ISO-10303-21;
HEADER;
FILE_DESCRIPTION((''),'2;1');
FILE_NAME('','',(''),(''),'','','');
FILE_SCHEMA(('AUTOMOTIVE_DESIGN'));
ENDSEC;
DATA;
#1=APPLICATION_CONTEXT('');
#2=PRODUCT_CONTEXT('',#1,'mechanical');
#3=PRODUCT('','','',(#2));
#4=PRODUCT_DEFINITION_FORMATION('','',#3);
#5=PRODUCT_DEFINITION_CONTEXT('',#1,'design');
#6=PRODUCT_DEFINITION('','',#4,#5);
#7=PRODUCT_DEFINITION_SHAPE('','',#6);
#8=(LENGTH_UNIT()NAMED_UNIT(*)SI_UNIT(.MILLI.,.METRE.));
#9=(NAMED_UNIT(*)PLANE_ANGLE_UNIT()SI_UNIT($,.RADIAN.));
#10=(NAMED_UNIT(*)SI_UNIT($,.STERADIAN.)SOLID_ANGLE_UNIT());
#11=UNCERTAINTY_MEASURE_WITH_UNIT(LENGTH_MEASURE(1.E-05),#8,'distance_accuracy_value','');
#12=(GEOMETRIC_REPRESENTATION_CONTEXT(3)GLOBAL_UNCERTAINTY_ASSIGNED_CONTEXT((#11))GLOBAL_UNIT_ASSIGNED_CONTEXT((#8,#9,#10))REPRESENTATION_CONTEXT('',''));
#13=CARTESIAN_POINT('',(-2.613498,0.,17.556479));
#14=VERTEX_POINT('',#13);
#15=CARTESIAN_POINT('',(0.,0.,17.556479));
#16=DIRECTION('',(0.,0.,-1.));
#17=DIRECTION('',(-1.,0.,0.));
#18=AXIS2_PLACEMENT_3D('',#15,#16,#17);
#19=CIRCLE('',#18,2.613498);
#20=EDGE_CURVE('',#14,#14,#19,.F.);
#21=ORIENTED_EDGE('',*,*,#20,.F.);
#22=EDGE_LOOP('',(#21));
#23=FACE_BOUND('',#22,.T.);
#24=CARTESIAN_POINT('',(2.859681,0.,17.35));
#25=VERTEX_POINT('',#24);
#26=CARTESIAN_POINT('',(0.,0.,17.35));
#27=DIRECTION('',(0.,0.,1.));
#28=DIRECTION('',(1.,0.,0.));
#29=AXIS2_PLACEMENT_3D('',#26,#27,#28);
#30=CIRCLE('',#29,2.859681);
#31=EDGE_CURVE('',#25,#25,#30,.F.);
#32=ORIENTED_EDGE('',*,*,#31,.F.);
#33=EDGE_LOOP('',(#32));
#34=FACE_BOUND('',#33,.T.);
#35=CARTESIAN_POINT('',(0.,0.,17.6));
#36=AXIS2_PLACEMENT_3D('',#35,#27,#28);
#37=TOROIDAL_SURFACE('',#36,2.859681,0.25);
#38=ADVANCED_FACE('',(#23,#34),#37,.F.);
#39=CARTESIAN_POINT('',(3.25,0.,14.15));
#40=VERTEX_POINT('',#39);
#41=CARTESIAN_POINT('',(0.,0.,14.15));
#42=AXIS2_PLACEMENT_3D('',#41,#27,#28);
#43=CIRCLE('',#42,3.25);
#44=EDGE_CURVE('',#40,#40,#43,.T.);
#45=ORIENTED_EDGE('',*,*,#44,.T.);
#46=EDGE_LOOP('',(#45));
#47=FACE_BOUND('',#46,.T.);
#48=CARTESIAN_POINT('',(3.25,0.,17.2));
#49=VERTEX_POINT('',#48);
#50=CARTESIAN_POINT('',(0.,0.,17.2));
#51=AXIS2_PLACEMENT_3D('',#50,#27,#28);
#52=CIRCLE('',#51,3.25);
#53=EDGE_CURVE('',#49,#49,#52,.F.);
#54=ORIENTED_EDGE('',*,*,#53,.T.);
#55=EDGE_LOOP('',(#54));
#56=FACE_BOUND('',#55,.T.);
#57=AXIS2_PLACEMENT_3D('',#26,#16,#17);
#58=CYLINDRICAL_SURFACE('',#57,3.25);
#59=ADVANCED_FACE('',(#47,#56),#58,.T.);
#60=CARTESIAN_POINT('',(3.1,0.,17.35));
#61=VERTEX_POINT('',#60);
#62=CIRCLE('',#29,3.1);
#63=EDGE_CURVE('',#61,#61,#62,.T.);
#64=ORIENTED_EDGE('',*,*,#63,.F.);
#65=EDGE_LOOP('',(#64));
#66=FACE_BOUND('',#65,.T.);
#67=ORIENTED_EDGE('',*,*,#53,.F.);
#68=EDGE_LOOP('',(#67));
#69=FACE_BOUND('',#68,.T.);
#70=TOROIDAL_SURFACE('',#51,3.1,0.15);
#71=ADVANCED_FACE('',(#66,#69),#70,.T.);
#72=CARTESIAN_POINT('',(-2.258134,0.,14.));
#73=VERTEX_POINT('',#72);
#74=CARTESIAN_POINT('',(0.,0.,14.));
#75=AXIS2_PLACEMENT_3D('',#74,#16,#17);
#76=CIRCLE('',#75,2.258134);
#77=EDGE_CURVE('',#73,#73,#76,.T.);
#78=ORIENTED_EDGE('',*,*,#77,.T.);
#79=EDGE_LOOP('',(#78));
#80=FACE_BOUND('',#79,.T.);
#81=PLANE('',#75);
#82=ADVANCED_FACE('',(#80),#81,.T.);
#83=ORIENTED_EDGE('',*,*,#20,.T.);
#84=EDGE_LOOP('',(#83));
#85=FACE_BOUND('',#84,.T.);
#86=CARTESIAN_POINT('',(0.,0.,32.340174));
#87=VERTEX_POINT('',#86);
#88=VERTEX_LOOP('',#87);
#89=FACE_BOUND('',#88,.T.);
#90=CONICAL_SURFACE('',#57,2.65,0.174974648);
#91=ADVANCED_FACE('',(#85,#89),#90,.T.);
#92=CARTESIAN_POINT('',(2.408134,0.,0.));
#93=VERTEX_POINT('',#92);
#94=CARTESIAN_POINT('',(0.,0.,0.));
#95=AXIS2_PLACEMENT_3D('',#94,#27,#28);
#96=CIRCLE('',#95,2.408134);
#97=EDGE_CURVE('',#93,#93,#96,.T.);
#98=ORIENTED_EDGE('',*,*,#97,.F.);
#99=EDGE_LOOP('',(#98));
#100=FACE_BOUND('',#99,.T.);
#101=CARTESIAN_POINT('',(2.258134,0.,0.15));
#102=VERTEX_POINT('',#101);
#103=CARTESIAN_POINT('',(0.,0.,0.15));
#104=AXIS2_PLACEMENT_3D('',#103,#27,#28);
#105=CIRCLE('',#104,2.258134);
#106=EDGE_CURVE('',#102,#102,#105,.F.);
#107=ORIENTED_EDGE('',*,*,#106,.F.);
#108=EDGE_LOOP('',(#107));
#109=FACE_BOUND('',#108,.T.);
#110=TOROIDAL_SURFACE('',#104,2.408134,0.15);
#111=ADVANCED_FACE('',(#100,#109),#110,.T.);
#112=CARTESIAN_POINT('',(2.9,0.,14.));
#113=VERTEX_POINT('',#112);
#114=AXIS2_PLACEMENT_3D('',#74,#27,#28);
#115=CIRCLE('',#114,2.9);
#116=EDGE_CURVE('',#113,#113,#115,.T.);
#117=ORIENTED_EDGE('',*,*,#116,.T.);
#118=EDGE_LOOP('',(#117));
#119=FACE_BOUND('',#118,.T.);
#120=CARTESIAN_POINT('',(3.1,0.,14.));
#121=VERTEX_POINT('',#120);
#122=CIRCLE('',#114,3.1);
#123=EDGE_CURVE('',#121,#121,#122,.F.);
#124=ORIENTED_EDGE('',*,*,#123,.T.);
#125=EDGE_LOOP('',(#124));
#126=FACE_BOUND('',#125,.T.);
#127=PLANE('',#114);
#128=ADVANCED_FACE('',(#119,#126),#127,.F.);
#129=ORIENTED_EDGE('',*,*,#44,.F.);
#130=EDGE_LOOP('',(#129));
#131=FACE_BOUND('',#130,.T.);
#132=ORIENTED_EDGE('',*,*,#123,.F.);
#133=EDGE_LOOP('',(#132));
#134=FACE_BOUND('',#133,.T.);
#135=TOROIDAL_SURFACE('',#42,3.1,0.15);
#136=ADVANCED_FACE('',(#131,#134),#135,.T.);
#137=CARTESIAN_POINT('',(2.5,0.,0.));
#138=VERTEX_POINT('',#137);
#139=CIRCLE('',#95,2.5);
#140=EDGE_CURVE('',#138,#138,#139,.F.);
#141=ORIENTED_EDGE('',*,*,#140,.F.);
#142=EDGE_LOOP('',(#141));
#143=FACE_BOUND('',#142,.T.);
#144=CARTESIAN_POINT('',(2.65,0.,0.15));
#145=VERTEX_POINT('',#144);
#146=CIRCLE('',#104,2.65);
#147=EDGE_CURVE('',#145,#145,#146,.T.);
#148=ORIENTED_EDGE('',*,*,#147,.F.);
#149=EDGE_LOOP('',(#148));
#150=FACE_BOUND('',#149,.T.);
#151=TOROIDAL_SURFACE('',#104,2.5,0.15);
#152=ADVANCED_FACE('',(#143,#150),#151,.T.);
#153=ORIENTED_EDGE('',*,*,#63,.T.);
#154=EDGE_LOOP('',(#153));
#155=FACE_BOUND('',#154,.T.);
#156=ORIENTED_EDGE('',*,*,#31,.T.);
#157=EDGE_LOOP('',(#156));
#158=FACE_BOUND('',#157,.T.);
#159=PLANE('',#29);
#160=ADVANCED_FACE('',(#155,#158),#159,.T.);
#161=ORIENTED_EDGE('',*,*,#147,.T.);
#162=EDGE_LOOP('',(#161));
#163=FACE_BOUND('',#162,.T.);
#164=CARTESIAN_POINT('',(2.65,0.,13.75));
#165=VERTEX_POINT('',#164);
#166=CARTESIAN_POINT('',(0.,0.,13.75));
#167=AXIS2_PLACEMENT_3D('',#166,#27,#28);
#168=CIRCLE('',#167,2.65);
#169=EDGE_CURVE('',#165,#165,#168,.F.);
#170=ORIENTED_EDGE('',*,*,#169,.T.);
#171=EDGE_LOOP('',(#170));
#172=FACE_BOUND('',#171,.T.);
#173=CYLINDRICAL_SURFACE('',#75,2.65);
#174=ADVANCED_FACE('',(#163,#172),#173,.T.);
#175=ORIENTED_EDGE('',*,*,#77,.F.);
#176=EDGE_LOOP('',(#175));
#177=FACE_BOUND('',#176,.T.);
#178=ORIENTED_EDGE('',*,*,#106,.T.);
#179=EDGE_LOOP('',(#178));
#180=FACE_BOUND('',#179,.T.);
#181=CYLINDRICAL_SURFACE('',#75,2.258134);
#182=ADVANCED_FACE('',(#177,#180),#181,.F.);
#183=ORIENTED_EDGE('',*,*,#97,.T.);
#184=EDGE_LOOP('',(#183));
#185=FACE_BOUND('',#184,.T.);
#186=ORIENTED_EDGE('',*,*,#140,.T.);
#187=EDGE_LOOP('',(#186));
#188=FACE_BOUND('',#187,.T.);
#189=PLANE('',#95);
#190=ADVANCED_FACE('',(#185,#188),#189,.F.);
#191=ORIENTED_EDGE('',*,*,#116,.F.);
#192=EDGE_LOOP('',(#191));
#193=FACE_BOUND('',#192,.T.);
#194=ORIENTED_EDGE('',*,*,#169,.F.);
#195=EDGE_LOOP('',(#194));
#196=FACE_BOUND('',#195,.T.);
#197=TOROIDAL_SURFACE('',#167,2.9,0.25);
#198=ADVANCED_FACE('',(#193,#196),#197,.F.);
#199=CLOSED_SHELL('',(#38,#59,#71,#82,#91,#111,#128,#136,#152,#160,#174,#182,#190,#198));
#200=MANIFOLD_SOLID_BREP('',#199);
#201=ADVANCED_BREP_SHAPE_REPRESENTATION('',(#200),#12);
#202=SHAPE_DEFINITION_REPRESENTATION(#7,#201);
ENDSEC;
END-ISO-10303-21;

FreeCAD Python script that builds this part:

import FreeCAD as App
import Part
import Sketcher
Q = App.Units.Quantity


def edges_at(feature, points):
    """Names of the edges that pass closest to the given points."""
    edges = feature.Shape.Edges
    near = lambda p: min(range(len(edges)), key=lambda i: edges[i].distToShape(Part.Vertex(*p))[0])
    return sorted({f"Edge{near(p) + 1}" for p in points})


def add_polygon(sketch, points):
    """Adds a closed chain of lines whose ends are joined by coincident constraints."""
    first, n = sketch.GeometryCount, len(points)
    for a, b in zip(points, points[1:] + points[:1]):
        sketch.addGeometry(Part.LineSegment(App.Vector(*a, 0), App.Vector(*b, 0)), False)
    for i in range(n):
        sketch.addConstraint(Sketcher.Constraint("Coincident", first + i, 2, first + (i + 1) % n, 1))

doc = App.newDocument("Part")
body = doc.addObject("PartDesign::Body", "Body")

sketch1 = body.newObject("Sketcher::SketchObject", "Sketch")
sketch1.AttachmentSupport = (doc.getObject("XY_Plane"), [""])
sketch1.MapMode = "FlatFace"
sketch1.addGeometry(Part.Circle(App.Vector(0, 0, 0), App.Vector(0, 0, 1), 2.6), False)
sketch1.addConstraint(Sketcher.Constraint("Coincident", 0, 3, -1, 1))
sketch1.addConstraint(Sketcher.Constraint("Diameter", 0, Q("5.3 mm")))
pad1 = body.newObject("PartDesign::Pad", "Pad")
pad1.Profile = sketch1
pad1.Length = 14

sketch2 = body.newObject("Sketcher::SketchObject", "Sketch001")
sketch2.AttachmentSupport = (doc.getObject("XY_Plane"), [""])
sketch2.MapMode = "FlatFace"
sketch2.AttachmentOffset = App.Placement(App.Vector(0, 0, 14), App.Rotation())
sketch2.addGeometry(Part.Circle(App.Vector(0, 0, 0), App.Vector(0, 0, 1), 3.2), False)
sketch2.addConstraint(Sketcher.Constraint("Coincident", 0, 3, -1, 1))
sketch2.addConstraint(Sketcher.Constraint("Diameter", 0, Q("6.5 mm")))
pad2 = body.newObject("PartDesign::Pad", "Pad001")
pad2.Profile = sketch2
pad2.Length = 3.35

sketch3 = body.newObject("Sketcher::SketchObject", "Sketch002")
sketch3.AttachmentSupport = (doc.getObject("XZ_Plane"), [""])
sketch3.MapMode = "FlatFace"
add_polygon(sketch3, [(-2.6, 17.4), (0, 32.3), (0, 17.4)])
sketch3.addConstraint(Sketcher.Constraint("Vertical", 1))
sketch3.addConstraint(Sketcher.Constraint("Horizontal", 2))
sketch3.addConstraint(Sketcher.Constraint("PointOnObject", 0, 2, -2))
sketch3.addConstraint(Sketcher.Constraint("DistanceX", 2, 2, 2, 1, Q("2.65 mm")))
sketch3.addConstraint(Sketcher.Constraint("DistanceY", -1, 1, 1, 2, Q("17.35 mm")))
sketch3.addConstraint(Sketcher.Constraint("Distance", 0, Q("15.222609 mm")))
revolution = body.newObject("PartDesign::Revolution", "Revolution")
revolution.Profile = sketch3
revolution.ReferenceAxis = (sketch3, ["V_Axis"])
revolution.Angle = 360
doc.recompute()

fillet = body.newObject("PartDesign::Fillet", "Fillet")
fillet.Base = (revolution, edges_at(revolution, [(-2.65, 0, 14), (2.65, 0, 17.35)]))
fillet.Radius = 0.25
doc.recompute()

fillet2 = body.newObject("PartDesign::Fillet", "Fillet001")
fillet2.Base = (fillet, edges_at(fillet, [(-3.25, 0, 14), (-3.25, 0, 17.35)]))
fillet2.Radius = 0.15

sketch4 = body.newObject("Sketcher::SketchObject", "Sketch003")
sketch4.AttachmentSupport = (doc.getObject("XY_Plane"), [""])
sketch4.MapMode = "FlatFace"
sketch4.addGeometry(Part.Circle(App.Vector(0, 0, 0), App.Vector(0, 0, 1), 2.3), False)
sketch4.addConstraint(Sketcher.Constraint("Coincident", 0, 3, -1, 1))
sketch4.addConstraint(Sketcher.Constraint("Diameter", 0, Q("4.516267 mm")))
pocket1 = body.newObject("PartDesign::Pocket", "Pocket")
pocket1.Profile = sketch4
pocket1.Length = 14
pocket1.Reversed = True
doc.recompute()

fillet3 = body.newObject("PartDesign::Fillet", "Fillet002")
fillet3.Base = (pocket1, edges_at(pocket1, [(-2.65, 0, 0), (2.258, 0, 0)]))
fillet3.Radius = 0.15

doc.recompute()
